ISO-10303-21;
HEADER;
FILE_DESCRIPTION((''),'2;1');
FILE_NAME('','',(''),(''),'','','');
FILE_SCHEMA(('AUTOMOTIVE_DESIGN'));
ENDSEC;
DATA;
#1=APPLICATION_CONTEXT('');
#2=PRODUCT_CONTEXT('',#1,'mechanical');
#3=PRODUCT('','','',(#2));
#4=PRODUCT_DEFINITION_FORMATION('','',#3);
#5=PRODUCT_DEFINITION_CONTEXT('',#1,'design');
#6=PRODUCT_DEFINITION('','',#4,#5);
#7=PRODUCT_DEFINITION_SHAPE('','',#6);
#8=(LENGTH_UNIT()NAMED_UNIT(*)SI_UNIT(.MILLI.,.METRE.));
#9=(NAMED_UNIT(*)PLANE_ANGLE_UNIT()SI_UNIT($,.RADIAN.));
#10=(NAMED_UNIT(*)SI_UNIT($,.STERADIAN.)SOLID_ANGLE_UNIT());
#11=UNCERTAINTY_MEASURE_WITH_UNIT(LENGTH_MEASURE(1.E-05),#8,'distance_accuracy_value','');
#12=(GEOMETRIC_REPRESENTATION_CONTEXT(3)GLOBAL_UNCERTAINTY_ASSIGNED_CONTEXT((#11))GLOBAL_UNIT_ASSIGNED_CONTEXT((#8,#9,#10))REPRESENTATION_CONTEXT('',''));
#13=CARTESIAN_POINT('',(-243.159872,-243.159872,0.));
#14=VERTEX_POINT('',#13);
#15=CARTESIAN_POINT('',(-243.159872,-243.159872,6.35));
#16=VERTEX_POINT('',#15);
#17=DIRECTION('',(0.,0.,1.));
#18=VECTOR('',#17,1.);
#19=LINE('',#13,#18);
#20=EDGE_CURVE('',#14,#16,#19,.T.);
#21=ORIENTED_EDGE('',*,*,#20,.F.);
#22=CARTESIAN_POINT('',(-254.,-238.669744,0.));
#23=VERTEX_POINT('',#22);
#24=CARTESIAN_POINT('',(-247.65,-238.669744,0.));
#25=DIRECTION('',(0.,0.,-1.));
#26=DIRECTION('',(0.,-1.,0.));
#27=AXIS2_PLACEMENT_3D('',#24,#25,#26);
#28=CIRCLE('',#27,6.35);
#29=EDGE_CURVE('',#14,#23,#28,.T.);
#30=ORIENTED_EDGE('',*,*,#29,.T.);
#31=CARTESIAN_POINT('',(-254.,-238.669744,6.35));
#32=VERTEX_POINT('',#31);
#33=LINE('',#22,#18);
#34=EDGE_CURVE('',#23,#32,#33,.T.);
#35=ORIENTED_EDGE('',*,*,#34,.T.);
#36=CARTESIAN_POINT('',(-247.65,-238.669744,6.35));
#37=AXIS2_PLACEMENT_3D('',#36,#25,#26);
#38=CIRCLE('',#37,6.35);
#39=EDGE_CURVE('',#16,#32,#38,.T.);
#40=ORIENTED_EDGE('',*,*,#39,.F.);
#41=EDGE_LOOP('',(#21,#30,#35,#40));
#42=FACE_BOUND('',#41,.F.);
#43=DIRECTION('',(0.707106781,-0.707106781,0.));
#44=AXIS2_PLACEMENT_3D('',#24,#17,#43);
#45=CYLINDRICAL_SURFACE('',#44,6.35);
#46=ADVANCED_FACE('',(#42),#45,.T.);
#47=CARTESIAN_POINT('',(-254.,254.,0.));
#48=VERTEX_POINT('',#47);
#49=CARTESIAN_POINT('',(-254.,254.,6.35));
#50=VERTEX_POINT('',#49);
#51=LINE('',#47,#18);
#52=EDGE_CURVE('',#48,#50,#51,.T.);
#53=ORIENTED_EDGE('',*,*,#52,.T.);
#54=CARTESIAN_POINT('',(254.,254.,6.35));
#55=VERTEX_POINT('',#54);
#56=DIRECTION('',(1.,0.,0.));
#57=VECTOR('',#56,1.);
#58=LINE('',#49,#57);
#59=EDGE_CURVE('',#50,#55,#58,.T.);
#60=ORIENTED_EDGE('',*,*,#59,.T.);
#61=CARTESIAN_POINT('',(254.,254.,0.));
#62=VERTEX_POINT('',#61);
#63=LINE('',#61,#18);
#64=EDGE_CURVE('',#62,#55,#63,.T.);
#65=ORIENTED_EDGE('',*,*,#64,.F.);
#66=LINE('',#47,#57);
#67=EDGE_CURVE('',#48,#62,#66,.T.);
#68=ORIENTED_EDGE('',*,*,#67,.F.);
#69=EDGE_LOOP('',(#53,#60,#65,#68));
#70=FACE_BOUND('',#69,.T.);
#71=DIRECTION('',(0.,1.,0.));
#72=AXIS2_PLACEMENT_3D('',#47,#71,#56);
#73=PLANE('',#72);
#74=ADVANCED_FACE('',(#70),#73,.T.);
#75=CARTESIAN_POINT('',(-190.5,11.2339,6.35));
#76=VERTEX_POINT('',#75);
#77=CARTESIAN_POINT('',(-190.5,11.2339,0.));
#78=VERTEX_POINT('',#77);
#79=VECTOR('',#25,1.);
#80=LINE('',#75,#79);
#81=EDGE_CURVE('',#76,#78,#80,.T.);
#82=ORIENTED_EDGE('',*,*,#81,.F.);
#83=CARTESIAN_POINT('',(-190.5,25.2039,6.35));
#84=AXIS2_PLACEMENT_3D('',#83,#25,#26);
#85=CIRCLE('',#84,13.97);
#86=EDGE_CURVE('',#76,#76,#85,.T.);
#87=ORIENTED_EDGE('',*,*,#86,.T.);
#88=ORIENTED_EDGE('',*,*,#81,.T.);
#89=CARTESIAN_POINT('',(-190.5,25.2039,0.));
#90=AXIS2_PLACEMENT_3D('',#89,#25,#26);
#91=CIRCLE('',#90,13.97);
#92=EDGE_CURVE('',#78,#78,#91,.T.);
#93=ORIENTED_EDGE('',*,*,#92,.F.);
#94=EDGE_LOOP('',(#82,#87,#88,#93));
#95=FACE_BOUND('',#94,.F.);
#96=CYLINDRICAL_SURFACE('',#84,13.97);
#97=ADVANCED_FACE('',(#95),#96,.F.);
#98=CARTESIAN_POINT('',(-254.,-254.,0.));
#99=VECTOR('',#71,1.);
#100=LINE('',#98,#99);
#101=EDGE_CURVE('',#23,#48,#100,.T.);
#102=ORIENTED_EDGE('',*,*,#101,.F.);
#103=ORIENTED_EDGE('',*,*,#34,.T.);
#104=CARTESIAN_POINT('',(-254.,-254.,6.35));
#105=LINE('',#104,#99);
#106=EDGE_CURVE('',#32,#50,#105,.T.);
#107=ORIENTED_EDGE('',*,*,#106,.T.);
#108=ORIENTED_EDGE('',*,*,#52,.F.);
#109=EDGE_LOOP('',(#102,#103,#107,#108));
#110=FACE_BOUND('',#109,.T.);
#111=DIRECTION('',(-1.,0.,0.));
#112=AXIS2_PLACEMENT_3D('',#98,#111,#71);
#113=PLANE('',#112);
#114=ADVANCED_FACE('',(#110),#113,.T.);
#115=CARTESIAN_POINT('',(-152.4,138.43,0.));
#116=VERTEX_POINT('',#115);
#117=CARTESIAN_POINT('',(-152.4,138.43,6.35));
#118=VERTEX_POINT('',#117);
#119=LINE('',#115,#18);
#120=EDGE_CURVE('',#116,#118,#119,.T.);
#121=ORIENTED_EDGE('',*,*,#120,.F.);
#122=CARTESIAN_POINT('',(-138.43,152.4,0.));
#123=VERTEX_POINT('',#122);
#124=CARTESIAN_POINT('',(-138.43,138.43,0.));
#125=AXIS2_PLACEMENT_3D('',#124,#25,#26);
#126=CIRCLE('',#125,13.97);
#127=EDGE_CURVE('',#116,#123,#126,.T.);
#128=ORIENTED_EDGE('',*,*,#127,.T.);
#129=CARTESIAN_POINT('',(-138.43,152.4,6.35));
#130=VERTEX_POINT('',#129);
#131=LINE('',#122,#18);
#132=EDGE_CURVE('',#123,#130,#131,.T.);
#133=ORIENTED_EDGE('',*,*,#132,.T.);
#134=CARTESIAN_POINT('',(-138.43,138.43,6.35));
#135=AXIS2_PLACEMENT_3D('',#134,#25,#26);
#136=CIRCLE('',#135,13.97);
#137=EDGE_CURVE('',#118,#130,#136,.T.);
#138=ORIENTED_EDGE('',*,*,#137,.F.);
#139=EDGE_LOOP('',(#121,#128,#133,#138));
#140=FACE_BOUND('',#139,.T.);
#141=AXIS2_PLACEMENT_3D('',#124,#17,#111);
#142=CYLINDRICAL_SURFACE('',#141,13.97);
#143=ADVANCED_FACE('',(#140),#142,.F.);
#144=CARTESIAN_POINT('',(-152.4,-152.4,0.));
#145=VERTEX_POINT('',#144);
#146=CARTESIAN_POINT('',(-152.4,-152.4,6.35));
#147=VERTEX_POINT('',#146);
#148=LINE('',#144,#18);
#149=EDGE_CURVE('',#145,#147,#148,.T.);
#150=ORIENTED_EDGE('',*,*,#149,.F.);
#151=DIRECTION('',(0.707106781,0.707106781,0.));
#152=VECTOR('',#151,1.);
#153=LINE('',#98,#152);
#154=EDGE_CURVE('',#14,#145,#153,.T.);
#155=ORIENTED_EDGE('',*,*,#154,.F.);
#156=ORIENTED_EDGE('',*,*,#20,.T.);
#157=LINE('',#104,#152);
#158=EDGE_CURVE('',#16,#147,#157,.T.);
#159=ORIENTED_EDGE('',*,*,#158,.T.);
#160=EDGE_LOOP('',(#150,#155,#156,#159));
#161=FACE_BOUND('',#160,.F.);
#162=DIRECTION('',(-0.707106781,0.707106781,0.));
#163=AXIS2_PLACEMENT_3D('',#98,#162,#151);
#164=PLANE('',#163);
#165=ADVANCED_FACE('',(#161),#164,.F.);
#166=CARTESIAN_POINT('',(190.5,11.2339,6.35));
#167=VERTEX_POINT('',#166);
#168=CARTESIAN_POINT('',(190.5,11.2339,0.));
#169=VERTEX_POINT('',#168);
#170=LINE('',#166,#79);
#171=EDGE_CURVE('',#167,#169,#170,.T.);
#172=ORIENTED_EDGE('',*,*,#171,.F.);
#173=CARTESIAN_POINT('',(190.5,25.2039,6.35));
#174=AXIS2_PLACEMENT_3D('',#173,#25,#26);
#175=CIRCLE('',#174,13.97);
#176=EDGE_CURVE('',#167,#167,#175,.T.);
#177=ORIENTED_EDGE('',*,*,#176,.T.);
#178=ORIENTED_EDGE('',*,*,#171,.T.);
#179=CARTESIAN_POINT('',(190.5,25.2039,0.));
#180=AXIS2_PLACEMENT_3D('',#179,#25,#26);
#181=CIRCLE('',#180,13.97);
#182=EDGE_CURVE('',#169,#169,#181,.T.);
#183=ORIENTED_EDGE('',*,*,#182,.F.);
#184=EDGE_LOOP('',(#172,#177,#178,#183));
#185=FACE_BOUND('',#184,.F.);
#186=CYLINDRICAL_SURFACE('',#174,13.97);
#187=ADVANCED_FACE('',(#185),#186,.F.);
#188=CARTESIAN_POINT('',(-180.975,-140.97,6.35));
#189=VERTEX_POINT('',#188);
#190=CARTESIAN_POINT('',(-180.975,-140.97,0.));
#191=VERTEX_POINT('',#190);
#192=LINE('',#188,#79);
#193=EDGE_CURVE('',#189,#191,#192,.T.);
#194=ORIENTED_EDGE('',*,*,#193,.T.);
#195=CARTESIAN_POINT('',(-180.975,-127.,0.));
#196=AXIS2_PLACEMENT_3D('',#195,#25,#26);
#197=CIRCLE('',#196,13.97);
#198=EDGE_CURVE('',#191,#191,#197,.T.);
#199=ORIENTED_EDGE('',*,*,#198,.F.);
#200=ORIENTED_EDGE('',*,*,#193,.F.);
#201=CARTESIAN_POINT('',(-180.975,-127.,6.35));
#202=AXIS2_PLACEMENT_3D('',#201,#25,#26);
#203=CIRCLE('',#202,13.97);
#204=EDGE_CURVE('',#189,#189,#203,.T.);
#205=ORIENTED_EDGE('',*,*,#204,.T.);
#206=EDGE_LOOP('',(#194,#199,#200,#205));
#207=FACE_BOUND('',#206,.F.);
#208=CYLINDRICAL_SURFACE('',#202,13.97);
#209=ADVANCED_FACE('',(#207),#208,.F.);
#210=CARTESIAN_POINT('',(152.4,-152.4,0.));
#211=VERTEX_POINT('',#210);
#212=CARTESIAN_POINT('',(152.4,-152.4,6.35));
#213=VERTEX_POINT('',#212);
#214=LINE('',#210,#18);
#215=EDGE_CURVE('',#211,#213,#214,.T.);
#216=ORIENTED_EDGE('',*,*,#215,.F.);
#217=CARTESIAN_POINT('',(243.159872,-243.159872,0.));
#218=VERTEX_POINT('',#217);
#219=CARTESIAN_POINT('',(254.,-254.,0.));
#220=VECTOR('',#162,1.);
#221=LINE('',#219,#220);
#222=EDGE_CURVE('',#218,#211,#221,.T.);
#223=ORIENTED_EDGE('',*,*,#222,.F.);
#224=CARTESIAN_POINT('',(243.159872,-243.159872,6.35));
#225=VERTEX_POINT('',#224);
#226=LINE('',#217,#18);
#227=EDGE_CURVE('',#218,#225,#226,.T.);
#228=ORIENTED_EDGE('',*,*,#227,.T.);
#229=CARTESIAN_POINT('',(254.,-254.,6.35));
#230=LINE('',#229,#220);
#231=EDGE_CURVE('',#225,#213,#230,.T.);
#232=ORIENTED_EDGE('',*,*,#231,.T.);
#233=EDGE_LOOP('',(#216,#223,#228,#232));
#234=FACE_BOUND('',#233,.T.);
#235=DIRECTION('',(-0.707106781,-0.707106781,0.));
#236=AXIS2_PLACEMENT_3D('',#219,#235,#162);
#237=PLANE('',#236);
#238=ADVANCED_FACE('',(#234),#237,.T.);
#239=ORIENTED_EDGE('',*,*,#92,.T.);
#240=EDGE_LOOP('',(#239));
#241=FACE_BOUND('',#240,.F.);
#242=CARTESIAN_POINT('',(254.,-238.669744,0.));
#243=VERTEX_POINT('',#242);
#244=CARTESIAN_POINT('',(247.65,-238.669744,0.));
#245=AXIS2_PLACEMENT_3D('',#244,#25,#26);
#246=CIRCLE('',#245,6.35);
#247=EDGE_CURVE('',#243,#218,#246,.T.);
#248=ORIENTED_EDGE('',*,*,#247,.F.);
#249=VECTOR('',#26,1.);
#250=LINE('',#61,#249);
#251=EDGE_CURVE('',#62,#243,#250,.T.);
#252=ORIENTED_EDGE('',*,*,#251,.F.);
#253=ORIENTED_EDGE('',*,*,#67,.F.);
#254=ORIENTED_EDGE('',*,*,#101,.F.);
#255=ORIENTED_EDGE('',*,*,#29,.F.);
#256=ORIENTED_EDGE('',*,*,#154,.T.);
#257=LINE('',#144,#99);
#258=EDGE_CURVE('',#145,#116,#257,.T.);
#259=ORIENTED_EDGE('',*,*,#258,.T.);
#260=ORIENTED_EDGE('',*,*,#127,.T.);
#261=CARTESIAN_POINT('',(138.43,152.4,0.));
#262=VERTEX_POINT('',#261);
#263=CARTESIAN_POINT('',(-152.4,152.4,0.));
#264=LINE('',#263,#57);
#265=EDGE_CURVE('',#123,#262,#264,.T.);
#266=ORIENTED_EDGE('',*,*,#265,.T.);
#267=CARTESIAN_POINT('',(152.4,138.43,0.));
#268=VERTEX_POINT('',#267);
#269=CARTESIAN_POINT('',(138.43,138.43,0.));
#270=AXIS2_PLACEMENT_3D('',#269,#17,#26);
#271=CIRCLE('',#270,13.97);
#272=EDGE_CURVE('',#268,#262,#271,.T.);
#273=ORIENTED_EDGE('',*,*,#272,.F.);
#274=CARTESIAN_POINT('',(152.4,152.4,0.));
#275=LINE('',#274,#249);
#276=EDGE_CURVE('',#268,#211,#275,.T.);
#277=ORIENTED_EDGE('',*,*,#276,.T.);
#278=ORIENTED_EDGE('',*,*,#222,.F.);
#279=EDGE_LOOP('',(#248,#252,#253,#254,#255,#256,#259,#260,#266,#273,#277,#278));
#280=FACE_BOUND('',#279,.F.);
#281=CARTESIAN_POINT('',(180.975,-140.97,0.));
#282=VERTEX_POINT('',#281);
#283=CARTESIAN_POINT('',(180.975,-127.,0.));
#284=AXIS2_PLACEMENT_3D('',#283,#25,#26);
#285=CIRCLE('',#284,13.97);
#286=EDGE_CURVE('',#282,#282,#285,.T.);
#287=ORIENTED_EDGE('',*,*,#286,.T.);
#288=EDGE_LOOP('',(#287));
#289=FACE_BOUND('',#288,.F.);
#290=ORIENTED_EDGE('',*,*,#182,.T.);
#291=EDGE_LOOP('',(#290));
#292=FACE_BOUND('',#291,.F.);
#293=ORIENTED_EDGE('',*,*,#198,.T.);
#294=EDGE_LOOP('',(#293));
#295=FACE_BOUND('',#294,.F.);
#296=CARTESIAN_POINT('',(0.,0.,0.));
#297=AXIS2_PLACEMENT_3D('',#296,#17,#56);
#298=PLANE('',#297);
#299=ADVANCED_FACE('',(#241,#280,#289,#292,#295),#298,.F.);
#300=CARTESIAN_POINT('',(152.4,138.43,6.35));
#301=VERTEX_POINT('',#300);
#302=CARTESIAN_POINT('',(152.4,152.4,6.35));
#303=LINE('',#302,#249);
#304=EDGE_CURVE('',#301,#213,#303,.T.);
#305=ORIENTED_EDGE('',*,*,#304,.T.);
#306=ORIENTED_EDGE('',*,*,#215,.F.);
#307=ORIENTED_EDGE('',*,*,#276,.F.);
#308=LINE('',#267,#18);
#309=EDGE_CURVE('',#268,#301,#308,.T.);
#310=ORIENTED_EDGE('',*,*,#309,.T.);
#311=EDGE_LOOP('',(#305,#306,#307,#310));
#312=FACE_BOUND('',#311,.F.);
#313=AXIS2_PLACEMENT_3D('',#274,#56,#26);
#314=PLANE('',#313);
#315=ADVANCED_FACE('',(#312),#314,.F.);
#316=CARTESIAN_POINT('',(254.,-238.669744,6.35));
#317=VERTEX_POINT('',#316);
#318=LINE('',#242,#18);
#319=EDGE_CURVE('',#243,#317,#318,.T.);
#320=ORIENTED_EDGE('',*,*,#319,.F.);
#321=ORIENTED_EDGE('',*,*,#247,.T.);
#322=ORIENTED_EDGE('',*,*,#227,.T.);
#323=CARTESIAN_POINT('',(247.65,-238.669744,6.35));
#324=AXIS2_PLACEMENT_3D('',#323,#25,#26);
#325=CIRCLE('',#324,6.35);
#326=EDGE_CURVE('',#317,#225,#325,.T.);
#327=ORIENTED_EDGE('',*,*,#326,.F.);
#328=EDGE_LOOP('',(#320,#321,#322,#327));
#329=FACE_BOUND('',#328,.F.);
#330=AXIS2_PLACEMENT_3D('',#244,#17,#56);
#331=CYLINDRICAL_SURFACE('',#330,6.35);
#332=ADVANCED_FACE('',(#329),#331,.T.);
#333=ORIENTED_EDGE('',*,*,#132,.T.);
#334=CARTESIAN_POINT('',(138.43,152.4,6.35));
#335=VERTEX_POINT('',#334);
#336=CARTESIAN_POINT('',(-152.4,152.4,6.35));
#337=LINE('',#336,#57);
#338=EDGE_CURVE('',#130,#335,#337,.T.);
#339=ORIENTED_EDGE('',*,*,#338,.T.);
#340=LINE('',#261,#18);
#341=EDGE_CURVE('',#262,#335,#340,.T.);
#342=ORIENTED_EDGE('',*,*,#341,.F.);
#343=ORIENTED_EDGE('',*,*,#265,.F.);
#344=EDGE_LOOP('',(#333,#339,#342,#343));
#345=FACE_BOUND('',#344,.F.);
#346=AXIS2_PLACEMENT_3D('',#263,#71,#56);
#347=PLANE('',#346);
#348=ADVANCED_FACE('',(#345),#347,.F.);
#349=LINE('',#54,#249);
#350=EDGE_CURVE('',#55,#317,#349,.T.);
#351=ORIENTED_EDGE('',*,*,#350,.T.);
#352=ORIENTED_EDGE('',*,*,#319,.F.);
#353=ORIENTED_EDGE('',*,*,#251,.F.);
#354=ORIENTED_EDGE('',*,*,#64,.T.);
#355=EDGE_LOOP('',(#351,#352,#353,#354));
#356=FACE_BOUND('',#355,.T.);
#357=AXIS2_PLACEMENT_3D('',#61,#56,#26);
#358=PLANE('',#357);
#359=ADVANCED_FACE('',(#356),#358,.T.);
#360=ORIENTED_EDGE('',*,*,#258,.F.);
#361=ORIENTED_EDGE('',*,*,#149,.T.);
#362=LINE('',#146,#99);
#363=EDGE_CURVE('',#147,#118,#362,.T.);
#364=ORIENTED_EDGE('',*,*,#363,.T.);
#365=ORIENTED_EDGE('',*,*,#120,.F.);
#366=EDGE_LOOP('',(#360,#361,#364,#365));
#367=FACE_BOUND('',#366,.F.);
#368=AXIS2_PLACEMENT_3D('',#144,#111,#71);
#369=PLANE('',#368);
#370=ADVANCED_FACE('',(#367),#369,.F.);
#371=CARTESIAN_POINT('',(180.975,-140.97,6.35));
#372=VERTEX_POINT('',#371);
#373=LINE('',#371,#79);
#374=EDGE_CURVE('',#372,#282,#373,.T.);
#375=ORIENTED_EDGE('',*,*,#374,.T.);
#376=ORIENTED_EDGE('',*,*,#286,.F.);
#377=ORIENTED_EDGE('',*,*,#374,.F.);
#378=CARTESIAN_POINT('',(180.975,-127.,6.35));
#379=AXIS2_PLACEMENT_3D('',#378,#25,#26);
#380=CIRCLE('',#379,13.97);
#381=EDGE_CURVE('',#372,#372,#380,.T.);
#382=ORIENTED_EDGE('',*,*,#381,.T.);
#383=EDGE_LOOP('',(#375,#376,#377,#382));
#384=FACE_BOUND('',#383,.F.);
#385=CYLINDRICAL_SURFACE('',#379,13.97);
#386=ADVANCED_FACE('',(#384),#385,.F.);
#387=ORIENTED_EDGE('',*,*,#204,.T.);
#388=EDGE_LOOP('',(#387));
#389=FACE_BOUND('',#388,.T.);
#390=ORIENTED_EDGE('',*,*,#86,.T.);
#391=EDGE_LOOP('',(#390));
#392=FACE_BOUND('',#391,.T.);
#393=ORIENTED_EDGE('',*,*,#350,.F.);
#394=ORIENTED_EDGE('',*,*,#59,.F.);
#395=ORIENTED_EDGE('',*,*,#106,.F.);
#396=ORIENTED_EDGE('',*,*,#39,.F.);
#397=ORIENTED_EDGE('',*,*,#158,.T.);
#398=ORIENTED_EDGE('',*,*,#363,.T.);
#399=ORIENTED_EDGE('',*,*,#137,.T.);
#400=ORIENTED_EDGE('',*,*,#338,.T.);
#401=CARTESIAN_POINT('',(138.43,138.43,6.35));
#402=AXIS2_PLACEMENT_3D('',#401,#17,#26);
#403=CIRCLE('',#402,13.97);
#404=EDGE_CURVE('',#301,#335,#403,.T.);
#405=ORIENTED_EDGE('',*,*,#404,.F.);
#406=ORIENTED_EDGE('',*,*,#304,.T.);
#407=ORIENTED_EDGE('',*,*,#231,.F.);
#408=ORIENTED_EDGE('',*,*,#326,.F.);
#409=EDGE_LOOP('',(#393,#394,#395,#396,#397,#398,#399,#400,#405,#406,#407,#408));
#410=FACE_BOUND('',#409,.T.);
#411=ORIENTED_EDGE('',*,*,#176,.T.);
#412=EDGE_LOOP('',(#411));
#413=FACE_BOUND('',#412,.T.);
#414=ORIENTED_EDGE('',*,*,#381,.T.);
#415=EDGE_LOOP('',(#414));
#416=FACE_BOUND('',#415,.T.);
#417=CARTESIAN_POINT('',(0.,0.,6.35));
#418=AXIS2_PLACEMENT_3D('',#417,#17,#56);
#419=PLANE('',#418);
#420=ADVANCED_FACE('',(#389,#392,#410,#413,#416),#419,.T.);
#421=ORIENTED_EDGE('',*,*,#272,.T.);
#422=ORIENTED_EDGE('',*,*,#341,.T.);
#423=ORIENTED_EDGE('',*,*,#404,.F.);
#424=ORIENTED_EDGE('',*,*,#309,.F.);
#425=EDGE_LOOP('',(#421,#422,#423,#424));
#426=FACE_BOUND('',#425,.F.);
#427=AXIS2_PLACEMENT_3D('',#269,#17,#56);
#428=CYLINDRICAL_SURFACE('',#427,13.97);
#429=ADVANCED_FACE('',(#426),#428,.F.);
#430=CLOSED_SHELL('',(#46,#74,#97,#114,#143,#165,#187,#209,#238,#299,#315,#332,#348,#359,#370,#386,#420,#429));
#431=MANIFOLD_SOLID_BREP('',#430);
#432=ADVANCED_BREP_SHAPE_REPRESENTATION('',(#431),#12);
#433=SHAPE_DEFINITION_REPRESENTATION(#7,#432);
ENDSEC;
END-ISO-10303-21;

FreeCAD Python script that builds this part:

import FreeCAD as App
import Part
import Sketcher

V = App.Vector
Q = App.Units.Quantity


def edges_at(feature, points):
    """Names of the edges that pass closest to the given points."""
    edges = feature.Shape.Edges
    near = lambda p: min(range(len(edges)), key=lambda i: edges[i].distToShape(Part.Vertex(*p))[0])
    return sorted({f"Edge{near(p) + 1}" for p in points})

doc = App.newDocument("Part")
body = doc.addObject("PartDesign::Body", "Body")

sketch1 = body.newObject("Sketcher::SketchObject", "Sketch")
sketch1.AttachmentSupport = (doc.getObject("XY_Plane"), [""])
sketch1.MapMode = "FlatFace"
sketch1.addGeometry(Part.LineSegment(V(254, 254, 0), V(-254, 254, 0)), False)
sketch1.addGeometry(Part.LineSegment(V(-254, 254, 0), V(-254, -254, 0)), False)
sketch1.addGeometry(Part.LineSegment(V(-254, -254, 0), V(-152, -152, 0)), False)
sketch1.addGeometry(Part.LineSegment(V(-152, -152, 0), V(-152, 152, 0)), False)
sketch1.addGeometry(Part.LineSegment(V(-152, 152, 0), V(152, 152, 0)), False)
sketch1.addGeometry(Part.LineSegment(V(152, 152, 0), V(152, -152, 0)), False)
sketch1.addGeometry(Part.LineSegment(V(152, -152, 0), V(254, -254, 0)), False)
sketch1.addGeometry(Part.LineSegment(V(254, -254, 0), V(254, 254, 0)), False)
sketch1.addConstraint(Sketcher.Constraint("Coincident", 0, 2, 1, 1))
sketch1.addConstraint(Sketcher.Constraint("Coincident", 1, 2, 2, 1))
sketch1.addConstraint(Sketcher.Constraint("Coincident", 2, 2, 3, 1))
sketch1.addConstraint(Sketcher.Constraint("Coincident", 3, 2, 4, 1))
sketch1.addConstraint(Sketcher.Constraint("Coincident", 4, 2, 5, 1))
sketch1.addConstraint(Sketcher.Constraint("Coincident", 5, 2, 6, 1))
sketch1.addConstraint(Sketcher.Constraint("Coincident", 6, 2, 7, 1))
sketch1.addConstraint(Sketcher.Constraint("Coincident", 7, 2, 0, 1))
sketch1.addConstraint(Sketcher.Constraint("Horizontal", 0))
sketch1.addConstraint(Sketcher.Constraint("Vertical", 1))
sketch1.addConstraint(Sketcher.Constraint("Vertical", 3))
sketch1.addConstraint(Sketcher.Constraint("Horizontal", 4))
sketch1.addConstraint(Sketcher.Constraint("Vertical", 5))
sketch1.addConstraint(Sketcher.Constraint("Vertical", 7))
sketch1.addConstraint(Sketcher.Constraint("Symmetric", 2, 2, 4, 2, -1, 1))
sketch1.addConstraint(Sketcher.Constraint("Symmetric", 0, 2, 6, 2, -1, 1))
sketch1.addConstraint(Sketcher.Constraint("Perpendicular", 2, 6))
sketch1.addConstraint(Sketcher.Constraint("Horizontal", 2, 2, 5, 2))
sketch1.addConstraint(Sketcher.Constraint("Horizontal", 1, 2, 6, 2))
sketch1.addConstraint(Sketcher.Constraint("Equal", 0, 1))
sketch1.addConstraint(Sketcher.Constraint("DistanceX", 4, 1, 4, 2, Q("12 in")))
sketch1.addConstraint(Sketcher.Constraint("DistanceX", 1, 2, 2, 2, Q("4 in")))
pad1 = body.newObject("PartDesign::Pad", "Pad")
pad1.Profile = sketch1
pad1.Length = Q("0.25 in")

sketch2 = body.newObject("Sketcher::SketchObject", "Sketch001")
sketch2.AttachmentSupport = (doc.getObject("XY_Plane"), [""])
sketch2.MapMode = "FlatFace"
sketch2.AttachmentOffset = App.Placement(V(0, 0, 0.25 * 25.4), App.Rotation())
sketch2.addGeometry(Part.Circle(V(-181, -127, 0), V(0, 0, 1), 14), False)
sketch2.addGeometry(Part.Circle(V(-190, 25, 0), V(0, 0, 1), 14), False)
sketch2.addGeometry(Part.Circle(V(190, 25, 0), V(0, 0, 1), 14), False)
sketch2.addGeometry(Part.Circle(V(181, -127, 0), V(0, 0, 1), 14), False)
sketch2.addConstraint(Sketcher.Constraint("Equal", 0, 1))
sketch2.addConstraint(Sketcher.Constraint("Equal", 1, 2))
sketch2.addConstraint(Sketcher.Constraint("Equal", 2, 3))
sketch2.addConstraint(Sketcher.Constraint("Symmetric", 1, 3, 2, 3, -2))
sketch2.addConstraint(Sketcher.Constraint("Symmetric", 0, 3, 3, 3, -2))
sketch2.addConstraint(Sketcher.Constraint("Diameter", 0, Q("1.1 in")))
sketch2.addConstraint(Sketcher.Constraint("DistanceY", 0, 3, -1, 1, Q("5 in")))
sketch2.addConstraint(Sketcher.Constraint("DistanceX", 1, 3, 2, 3, Q("15 in")))
sketch2.addConstraint(Sketcher.Constraint("DistanceX", 0, 3, 3, 3, Q("14.25 in")))
sketch2.addConstraint(Sketcher.Constraint("DistanceY", -1, 1, 1, 3, 25.204))
doc.recompute()
hole = body.newObject("PartDesign::Hole", "Hole")
hole.Profile = sketch2
hole.ThreadType = "None"
hole.Diameter = Q("1.1 in")
hole.DepthType = "ThroughAll"
doc.recompute()

fillet = body.newObject("PartDesign::Fillet", "Fillet")
fillet.Base = (hole, edges_at(hole, [(-152.4, 152.4, 3.175), (152.4, 152.4, 3.175)]))
fillet.Radius = Q("0.55 in")
doc.recompute()

fillet2 = body.newObject("PartDesign::Fillet", "Fillet001")
fillet2.Base = (fillet, edges_at(fillet, [(-254, -254, 3.175), (254, -254, 3.175)]))
fillet2.Radius = Q("0.25 in")

doc.recompute()
